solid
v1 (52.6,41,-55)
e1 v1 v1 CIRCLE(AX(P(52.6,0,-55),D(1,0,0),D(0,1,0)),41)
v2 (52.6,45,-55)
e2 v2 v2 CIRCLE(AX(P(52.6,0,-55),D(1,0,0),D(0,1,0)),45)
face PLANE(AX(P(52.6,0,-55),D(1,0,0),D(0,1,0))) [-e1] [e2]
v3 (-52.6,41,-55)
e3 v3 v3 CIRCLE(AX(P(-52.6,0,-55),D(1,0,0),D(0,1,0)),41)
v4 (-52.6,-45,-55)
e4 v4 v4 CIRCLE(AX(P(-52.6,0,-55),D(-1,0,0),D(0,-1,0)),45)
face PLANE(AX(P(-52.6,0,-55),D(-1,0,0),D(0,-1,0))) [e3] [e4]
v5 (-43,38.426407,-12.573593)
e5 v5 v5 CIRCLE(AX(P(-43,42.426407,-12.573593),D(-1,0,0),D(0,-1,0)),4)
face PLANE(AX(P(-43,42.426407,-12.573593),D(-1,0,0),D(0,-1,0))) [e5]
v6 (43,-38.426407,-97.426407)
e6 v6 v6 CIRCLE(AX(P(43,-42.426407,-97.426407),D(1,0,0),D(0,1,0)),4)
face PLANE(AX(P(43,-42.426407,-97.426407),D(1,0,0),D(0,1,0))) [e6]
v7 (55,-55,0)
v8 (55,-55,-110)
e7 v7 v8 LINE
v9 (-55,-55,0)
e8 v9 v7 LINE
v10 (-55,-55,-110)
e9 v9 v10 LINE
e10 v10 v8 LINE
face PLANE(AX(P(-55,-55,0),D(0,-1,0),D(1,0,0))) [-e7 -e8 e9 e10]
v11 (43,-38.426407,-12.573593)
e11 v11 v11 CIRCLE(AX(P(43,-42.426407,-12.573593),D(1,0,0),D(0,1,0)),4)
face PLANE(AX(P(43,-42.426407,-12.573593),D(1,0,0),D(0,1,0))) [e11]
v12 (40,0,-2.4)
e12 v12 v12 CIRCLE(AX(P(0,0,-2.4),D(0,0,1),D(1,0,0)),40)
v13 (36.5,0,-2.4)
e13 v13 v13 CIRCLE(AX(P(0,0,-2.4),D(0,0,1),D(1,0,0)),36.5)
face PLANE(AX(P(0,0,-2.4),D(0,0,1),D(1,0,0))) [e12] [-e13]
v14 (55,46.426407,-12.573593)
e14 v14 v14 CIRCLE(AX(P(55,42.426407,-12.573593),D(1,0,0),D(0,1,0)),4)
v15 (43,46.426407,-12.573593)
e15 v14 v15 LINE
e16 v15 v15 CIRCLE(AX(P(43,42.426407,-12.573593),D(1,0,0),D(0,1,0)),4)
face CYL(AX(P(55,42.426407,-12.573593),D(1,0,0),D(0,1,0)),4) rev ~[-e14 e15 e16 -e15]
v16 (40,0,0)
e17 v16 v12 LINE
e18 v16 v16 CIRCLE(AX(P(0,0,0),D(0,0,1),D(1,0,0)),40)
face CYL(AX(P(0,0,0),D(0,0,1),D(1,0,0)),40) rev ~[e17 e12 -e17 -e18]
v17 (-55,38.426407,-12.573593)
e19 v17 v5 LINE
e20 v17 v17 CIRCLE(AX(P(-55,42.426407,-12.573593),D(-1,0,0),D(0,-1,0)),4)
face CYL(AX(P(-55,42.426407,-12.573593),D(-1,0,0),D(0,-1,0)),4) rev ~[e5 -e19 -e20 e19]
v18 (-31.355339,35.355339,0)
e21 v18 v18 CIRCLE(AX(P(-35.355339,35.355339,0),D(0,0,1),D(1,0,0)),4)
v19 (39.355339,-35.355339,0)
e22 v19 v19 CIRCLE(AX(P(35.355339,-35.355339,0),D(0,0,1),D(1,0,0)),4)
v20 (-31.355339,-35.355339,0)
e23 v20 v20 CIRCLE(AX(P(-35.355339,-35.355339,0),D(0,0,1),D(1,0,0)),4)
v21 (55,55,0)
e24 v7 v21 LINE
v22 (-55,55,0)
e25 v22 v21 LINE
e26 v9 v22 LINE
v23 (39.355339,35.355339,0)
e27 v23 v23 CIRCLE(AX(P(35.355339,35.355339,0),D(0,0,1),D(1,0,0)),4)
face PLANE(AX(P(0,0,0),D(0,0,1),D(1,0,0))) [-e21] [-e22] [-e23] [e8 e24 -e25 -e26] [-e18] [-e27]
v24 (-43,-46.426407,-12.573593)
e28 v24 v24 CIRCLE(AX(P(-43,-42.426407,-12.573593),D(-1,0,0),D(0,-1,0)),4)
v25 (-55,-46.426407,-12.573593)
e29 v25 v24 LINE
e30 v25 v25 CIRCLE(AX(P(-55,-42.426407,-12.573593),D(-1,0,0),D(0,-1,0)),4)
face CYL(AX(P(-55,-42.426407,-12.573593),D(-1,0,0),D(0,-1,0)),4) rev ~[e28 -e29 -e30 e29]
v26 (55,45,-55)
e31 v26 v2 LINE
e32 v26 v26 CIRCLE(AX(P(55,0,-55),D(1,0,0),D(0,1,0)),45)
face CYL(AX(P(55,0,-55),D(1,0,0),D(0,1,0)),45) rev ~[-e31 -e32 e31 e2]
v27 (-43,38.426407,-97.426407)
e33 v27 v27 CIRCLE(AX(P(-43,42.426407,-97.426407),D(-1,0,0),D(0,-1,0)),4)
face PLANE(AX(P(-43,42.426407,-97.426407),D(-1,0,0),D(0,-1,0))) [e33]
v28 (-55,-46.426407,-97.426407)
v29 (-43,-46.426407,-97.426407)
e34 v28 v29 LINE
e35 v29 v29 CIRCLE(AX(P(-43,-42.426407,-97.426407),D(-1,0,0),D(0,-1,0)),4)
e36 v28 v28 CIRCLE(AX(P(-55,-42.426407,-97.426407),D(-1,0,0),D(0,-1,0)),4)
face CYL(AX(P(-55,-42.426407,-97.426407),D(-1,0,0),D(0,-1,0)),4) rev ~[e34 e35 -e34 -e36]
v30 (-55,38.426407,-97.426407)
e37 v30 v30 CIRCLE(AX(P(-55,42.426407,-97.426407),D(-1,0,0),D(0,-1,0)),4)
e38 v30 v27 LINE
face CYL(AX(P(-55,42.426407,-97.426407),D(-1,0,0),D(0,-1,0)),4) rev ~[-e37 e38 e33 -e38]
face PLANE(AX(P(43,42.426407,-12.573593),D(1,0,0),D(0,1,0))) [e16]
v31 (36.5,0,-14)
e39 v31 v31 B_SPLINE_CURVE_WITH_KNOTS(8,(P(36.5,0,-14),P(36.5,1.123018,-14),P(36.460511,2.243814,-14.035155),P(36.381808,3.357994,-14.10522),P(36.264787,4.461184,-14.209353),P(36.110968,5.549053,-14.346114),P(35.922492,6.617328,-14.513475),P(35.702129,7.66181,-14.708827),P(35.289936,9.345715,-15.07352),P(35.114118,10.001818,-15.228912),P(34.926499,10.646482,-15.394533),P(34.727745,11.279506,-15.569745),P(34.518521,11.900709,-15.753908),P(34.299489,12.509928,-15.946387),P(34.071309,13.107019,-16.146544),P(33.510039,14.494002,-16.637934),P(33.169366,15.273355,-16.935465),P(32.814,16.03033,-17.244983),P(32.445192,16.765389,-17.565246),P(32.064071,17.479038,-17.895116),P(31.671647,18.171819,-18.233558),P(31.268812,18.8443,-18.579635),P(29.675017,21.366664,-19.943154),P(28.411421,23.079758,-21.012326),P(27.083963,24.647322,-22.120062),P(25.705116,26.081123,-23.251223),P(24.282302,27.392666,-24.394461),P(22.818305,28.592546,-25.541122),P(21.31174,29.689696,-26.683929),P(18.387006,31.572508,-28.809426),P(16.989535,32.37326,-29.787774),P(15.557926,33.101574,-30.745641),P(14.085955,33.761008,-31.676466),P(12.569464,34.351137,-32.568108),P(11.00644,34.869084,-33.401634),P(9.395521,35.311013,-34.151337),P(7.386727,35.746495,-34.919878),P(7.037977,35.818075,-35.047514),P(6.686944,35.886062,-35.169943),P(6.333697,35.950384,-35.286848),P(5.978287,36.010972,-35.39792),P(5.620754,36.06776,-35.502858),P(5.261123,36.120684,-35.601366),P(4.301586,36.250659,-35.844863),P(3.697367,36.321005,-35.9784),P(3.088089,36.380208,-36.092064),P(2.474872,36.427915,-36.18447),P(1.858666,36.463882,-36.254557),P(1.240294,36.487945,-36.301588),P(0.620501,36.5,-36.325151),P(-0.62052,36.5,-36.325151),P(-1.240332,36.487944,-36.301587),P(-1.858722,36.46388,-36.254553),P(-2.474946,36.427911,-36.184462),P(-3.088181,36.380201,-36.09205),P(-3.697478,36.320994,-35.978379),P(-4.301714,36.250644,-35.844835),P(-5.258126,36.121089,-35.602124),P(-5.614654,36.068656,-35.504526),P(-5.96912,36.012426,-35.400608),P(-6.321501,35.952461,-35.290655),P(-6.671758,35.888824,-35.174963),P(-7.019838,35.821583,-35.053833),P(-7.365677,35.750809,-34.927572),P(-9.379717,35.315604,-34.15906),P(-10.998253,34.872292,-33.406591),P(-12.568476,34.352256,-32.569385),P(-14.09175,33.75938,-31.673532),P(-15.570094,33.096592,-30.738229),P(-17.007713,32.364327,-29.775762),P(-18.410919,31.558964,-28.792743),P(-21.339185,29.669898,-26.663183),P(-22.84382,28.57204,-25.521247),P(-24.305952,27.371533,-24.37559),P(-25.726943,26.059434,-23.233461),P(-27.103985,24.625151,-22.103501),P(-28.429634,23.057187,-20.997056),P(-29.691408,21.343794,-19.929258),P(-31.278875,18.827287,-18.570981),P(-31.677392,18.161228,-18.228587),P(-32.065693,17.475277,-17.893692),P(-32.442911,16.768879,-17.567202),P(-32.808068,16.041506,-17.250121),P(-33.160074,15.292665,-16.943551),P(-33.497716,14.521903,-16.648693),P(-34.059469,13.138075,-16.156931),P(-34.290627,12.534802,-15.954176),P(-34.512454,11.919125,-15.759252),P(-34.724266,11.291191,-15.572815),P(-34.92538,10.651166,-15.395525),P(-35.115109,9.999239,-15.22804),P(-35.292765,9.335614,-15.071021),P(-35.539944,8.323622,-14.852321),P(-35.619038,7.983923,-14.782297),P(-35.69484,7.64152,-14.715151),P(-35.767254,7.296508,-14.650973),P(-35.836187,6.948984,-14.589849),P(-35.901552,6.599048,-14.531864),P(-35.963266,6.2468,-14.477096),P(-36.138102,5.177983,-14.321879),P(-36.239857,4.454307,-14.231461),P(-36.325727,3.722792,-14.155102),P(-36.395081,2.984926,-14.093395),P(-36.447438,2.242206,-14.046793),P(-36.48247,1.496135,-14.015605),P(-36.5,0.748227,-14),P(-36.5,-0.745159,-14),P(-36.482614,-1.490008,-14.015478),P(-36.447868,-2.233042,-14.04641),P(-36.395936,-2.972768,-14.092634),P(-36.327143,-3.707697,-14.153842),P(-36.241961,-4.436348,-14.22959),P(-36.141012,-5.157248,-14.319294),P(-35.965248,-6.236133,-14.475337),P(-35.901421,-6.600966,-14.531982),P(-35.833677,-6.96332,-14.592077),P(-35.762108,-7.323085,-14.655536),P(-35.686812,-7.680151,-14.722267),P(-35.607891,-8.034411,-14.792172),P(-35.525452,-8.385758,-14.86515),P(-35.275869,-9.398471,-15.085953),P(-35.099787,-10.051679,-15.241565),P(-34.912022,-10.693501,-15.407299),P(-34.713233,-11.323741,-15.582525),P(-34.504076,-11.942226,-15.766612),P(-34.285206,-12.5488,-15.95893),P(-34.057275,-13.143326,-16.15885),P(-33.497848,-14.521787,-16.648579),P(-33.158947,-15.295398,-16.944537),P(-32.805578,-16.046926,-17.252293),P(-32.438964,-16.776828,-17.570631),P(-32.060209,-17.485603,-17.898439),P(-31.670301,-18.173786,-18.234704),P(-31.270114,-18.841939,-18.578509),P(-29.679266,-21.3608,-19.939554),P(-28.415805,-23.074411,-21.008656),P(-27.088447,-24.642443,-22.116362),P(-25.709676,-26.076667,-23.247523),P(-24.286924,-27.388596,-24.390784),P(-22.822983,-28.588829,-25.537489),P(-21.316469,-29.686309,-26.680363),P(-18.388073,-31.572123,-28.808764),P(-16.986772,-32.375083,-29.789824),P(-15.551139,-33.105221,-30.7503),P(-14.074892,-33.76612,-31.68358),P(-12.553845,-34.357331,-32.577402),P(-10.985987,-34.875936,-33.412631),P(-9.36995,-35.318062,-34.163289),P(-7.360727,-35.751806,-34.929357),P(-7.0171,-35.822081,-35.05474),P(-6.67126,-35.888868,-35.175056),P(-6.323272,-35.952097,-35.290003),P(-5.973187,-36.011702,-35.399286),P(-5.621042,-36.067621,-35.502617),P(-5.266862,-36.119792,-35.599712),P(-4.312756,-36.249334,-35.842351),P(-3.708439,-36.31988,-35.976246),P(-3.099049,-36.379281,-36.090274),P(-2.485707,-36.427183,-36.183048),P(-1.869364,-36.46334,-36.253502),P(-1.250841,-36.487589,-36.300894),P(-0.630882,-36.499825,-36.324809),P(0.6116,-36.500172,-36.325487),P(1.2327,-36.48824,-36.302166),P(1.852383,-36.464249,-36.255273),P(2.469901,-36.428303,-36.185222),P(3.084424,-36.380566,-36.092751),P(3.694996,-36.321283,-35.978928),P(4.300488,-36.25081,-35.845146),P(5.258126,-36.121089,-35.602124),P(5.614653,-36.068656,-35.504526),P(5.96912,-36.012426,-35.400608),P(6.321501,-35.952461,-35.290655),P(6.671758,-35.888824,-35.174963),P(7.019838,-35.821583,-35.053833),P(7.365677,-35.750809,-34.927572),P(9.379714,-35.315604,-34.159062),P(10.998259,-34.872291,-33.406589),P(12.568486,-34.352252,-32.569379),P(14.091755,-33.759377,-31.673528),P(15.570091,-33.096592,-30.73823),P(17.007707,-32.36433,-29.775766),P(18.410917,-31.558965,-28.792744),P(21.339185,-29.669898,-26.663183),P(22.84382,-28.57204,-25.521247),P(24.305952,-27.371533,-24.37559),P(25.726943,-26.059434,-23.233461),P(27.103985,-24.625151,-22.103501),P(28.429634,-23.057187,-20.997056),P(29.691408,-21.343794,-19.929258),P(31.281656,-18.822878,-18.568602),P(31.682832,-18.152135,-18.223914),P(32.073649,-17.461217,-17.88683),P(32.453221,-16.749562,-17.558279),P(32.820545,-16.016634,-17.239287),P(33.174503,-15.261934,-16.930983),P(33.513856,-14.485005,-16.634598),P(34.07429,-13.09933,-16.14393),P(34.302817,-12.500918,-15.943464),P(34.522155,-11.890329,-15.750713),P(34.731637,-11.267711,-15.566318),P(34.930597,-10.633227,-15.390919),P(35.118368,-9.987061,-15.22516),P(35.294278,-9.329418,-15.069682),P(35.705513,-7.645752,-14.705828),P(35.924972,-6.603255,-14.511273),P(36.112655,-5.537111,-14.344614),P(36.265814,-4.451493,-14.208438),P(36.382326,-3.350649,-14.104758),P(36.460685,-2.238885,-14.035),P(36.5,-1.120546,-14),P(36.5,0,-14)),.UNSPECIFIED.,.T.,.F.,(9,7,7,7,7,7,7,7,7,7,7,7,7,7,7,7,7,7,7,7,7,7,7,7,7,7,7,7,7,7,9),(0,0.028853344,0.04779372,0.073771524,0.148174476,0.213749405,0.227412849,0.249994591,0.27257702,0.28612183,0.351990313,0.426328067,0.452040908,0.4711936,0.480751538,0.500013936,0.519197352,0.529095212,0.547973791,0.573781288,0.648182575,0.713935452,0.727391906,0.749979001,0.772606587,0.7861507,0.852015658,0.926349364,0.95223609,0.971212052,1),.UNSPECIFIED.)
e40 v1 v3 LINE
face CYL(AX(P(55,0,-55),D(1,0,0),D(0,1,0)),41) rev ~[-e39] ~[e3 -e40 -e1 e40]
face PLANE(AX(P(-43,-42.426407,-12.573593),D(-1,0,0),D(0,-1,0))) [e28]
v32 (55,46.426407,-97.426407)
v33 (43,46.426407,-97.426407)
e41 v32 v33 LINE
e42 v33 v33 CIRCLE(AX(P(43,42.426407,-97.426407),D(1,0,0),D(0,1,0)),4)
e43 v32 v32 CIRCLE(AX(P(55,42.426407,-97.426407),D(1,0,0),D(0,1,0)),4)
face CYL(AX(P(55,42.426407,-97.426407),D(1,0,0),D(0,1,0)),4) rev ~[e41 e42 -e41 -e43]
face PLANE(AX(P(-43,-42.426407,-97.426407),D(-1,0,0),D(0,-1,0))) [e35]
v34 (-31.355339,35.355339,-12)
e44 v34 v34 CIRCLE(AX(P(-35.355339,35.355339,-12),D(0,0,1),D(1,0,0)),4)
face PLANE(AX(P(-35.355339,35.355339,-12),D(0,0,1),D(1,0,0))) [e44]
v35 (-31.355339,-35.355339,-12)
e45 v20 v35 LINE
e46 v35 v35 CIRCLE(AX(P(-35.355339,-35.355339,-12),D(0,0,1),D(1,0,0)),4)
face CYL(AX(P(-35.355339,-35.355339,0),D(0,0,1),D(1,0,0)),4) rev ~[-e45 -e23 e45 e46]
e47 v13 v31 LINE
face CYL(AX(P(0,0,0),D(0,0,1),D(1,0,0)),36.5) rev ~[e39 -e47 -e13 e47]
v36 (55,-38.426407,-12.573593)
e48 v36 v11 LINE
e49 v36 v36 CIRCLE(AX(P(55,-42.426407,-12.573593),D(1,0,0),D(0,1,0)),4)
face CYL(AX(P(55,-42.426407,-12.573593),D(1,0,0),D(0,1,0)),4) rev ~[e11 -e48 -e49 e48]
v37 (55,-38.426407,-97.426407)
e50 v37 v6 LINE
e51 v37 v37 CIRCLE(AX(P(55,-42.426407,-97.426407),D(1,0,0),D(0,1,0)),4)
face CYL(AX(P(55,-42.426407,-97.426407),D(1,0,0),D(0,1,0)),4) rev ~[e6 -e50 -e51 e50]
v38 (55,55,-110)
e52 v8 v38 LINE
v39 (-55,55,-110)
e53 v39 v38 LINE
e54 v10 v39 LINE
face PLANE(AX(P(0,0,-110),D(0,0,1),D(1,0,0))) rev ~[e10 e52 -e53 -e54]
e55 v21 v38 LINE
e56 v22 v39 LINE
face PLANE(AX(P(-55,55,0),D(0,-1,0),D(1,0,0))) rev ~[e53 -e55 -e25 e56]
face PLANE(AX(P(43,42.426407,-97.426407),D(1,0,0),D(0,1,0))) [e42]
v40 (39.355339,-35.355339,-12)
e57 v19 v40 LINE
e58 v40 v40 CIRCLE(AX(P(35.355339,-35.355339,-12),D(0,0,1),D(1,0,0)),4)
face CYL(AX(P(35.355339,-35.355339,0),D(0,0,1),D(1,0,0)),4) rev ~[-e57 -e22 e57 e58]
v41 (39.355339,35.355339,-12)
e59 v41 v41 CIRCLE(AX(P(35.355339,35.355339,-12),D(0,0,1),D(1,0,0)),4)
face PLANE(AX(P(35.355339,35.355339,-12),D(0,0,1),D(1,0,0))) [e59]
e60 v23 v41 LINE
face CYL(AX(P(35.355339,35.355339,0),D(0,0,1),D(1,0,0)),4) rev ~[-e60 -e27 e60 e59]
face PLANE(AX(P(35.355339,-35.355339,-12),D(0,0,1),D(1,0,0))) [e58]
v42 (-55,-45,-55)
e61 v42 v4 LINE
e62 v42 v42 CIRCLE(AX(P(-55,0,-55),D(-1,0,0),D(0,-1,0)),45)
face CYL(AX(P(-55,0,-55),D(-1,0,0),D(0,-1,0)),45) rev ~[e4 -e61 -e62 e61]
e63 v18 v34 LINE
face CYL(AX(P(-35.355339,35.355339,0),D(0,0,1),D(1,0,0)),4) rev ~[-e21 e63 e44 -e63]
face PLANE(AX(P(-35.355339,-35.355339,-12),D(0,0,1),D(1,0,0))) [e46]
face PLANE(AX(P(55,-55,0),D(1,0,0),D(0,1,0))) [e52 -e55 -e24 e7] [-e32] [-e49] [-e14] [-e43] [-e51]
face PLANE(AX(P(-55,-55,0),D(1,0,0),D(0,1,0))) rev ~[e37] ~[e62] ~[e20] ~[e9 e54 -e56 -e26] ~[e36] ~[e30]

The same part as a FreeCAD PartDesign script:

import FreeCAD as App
import Part
import Sketcher

V = App.Vector
Q = App.Units.Quantity

doc = App.newDocument("Part")
body = doc.addObject("PartDesign::Body", "Body")

# Sketch on XY plane
sketch1 = doc.addObject("Sketcher::SketchObject", "Sketch")
body.addObject(sketch1)
sketch1.AttachmentSupport = (doc.XY_Plane, [""])
sketch1.MapMode = "FlatFace"
sketch1.addGeometry([
    Part.LineSegment(V(-55, 55, 0), V(-55, -55, 0)),
    Part.LineSegment(V(-55, -55, 0), V(55, -55, 0)),
    Part.LineSegment(V(55, -55, 0), V(55, 55, 0)),
    Part.LineSegment(V(55, 55, 0), V(-55, 55, 0)),
], False)
sketch1.addConstraint([
    Sketcher.Constraint("Coincident", 0, 2, 1, 1),
    Sketcher.Constraint("Coincident", 1, 2, 2, 1),
    Sketcher.Constraint("Coincident", 2, 2, 3, 1),
    Sketcher.Constraint("Coincident", 3, 2, 0, 1),
    Sketcher.Constraint("Vertical", 0),
    Sketcher.Constraint("Horizontal", 1),
    Sketcher.Constraint("Vertical", 2),
    Sketcher.Constraint("Horizontal", 3),
    Sketcher.Constraint("Symmetric", 0, 2, 2, 2, -1, 1),
    Sketcher.Constraint("Equal", 3, 0),
    Sketcher.Constraint("DistanceX", 1, 1, 1, 2, Q("110 mm")),
])
pad1 = doc.addObject("PartDesign::Pad", "Pad")
body.addObject(pad1)
pad1.Profile = sketch1
pad1.Length = 110
pad1.Reversed = True

# Sketch on XY plane
sketch2 = doc.addObject("Sketcher::SketchObject", "Sketch001")
body.addObject(sketch2)
sketch2.AttachmentSupport = (doc.XY_Plane, [""])
sketch2.MapMode = "FlatFace"
sketch2.addGeometry([
    Part.Circle(V(0, 0, 0), V(0, 0, 1), 40),
    Part.Circle(V(0, 0, 0), V(0, 0, 1), 36),
], False)
sketch2.addConstraint([
    Sketcher.Constraint("Coincident", 0, 3, -1, 1),
    Sketcher.Constraint("Coincident", 1, 3, -1, 1),
    Sketcher.Constraint("Diameter", 0, Q("80 mm")),
    Sketcher.Constraint("Diameter", 1, Q("73 mm")),
])
pocket1 = doc.addObject("PartDesign::Pocket", "Pocket")
body.addObject(pocket1)
pocket1.Profile = sketch2
pocket1.Length = 2.4

# Sketch on XY plane
sketch3 = doc.addObject("Sketcher::SketchObject", "Sketch002")
body.addObject(sketch3)
sketch3.AttachmentSupport = (doc.XY_Plane, [""])
sketch3.MapMode = "FlatFace"
sketch3.addGeometry(Part.Circle(V(0, 0, 0), V(0, 0, 1), 36), False)
sketch3.addConstraint([
    Sketcher.Constraint("Coincident", 0, 3, -1, 1),
    Sketcher.Constraint("Diameter", 0, Q("73 mm")),
])
pocket2 = doc.addObject("PartDesign::Pocket", "Pocket001")
body.addObject(pocket2)
pocket2.Profile = sketch3
pocket2.Length = 36.5

# Sketch on XY plane
sketch4 = doc.addObject("Sketcher::SketchObject", "Sketch003")
body.addObject(sketch4)
sketch4.AttachmentSupport = (doc.XY_Plane, [""])
sketch4.MapMode = "FlatFace"
sketch4.addGeometry([
    Part.Circle(V(35.4, 35.4, 0), V(0, 0, 1), 4),
    Part.Circle(V(-35.4, 35.4, 0), V(0, 0, 1), 4),
    Part.Circle(V(-35.4, -35.4, 0), V(0, 0, 1), 4),
    Part.Circle(V(35.4, -35.4, 0), V(0, 0, 1), 4),
], False)
sketch4.addConstraint([
    Sketcher.Constraint("Equal", 0, 1),
    Sketcher.Constraint("Equal", 1, 2),
    Sketcher.Constraint("Equal", 2, 3),
    Sketcher.Constraint("Symmetric", 0, 3, 2, 3, -1, 1),
    Sketcher.Constraint("Symmetric", 1, 3, 3, 3, -1, 1),
    Sketcher.Constraint("Symmetric", 0, 3, 1, 3, -2),
    Sketcher.Constraint("Diameter", 0, Q("8 mm")),
    Sketcher.Constraint("DistanceX", -1, 1, 0, 3, Q("35.355339 mm")),
    Sketcher.Constraint("DistanceY", -1, 1, 0, 3, Q("35.355339 mm")),
])
pocket3 = doc.addObject("PartDesign::Pocket", "Pocket002")
body.addObject(pocket3)
pocket3.Profile = sketch4
pocket3.Length = 12

# Sketch on YZ plane
sketch5 = doc.addObject("Sketcher::SketchObject", "Sketch004")
body.addObject(sketch5)
sketch5.AttachmentSupport = (doc.YZ_Plane, [""])
sketch5.MapMode = "FlatFace"
sketch5.AttachmentOffset = App.Placement(V(0, 0, 55), App.Rotation())
sketch5.addGeometry(Part.Circle(V(0, -55, 0), V(0, 0, 1), 41), False)
sketch5.addConstraint([
    Sketcher.Constraint("PointOnObject", 0, 3, -2),
    Sketcher.Constraint("Diameter", 0, Q("82 mm")),
    Sketcher.Constraint("DistanceY", 0, 3, -1, 1, Q("55 mm")),
])
pocket4 = doc.addObject("PartDesign::Pocket", "Pocket003")
body.addObject(pocket4)
pocket4.Profile = sketch5
pocket4.Type = "ThroughAll"

# Sketch on YZ plane
sketch6 = doc.addObject("Sketcher::SketchObject", "Sketch005")
body.addObject(sketch6)
sketch6.AttachmentSupport = (doc.YZ_Plane, [""])
sketch6.MapMode = "FlatFace"
sketch6.AttachmentOffset = App.Placement(V(0, 0, 55), App.Rotation())
sketch6.addGeometry([
    Part.Circle(V(0, -55, 0), V(0, 0, 1), 45),
    Part.Circle(V(0, -55, 0), V(0, 0, 1), 41),
], False)
sketch6.addConstraint([
    Sketcher.Constraint("Coincident", 1, 3, 0, 3),
    Sketcher.Constraint("PointOnObject", 0, 3, -2),
    Sketcher.Constraint("Diameter", 0, Q("90 mm")),
    Sketcher.Constraint("Diameter", 1, Q("82 mm")),
    Sketcher.Constraint("DistanceY", 0, 3, -1, 1, Q("55 mm")),
])
pocket5 = doc.addObject("PartDesign::Pocket", "Pocket004")
body.addObject(pocket5)
pocket5.Profile = sketch6
pocket5.Length = 2.4

# Sketch on YZ plane
sketch7 = doc.addObject("Sketcher::SketchObject", "Sketch006")
body.addObject(sketch7)
sketch7.AttachmentSupport = (doc.YZ_Plane, [""])
sketch7.MapMode = "FlatFace"
sketch7.AttachmentOffset = App.Placement(V(0, 0, 55), App.Rotation())
sketch7.addGeometry([
    Part.Circle(V(42.4, -12.6, 0), V(0, 0, 1), 4),
    Part.Circle(V(-42.4, -12.6, 0), V(0, 0, 1), 4),
    Part.Circle(V(-42.4, -97.4, 0), V(0, 0, 1), 4),
    Part.Circle(V(42.4, -97.4, 0), V(0, 0, 1), 4),
], False)
sketch7.addConstraint([
    Sketcher.Constraint("Equal", 0, 1),
    Sketcher.Constraint("Equal", 1, 2),
    Sketcher.Constraint("Equal", 2, 3),
    Sketcher.Constraint("Symmetric", 0, 3, 1, 3, -2),
    Sketcher.Constraint("Symmetric", 2, 3, 3, 3, -2),
    Sketcher.Constraint("Vertical", 1, 3, 2, 3),
    Sketcher.Constraint("Diameter", 0, Q("8 mm")),
    Sketcher.Constraint("DistanceX", -1, 1, 0, 3, Q("42.426407 mm")),
    Sketcher.Constraint("DistanceY", 0, 3, -1, 1, Q("12.573593 mm")),
    Sketcher.Constraint("DistanceY", 2, 3, -1, 1, Q("97.426407 mm")),
])
pocket6 = doc.addObject("PartDesign::Pocket", "Pocket005")
body.addObject(pocket6)
pocket6.Profile = sketch7
pocket6.Length = 12

# Sketch on YZ plane
sketch8 = doc.addObject("Sketcher::SketchObject", "Sketch007")
body.addObject(sketch8)
sketch8.AttachmentSupport = (doc.YZ_Plane, [""])
sketch8.MapMode = "FlatFace"
sketch8.AttachmentOffset = App.Placement(V(0, 0, -55), App.Rotation())
sketch8.addGeometry([
    Part.Circle(V(0, -55, 0), V(0, 0, 1), 45),
    Part.Circle(V(0, -55, 0), V(0, 0, 1), 41),
], False)
sketch8.addConstraint([
    Sketcher.Constraint("Coincident", 1, 3, 0, 3),
    Sketcher.Constraint("PointOnObject", 0, 3, -2),
    Sketcher.Constraint("Diameter", 0, Q("90 mm")),
    Sketcher.Constraint("Diameter", 1, Q("82 mm")),
    Sketcher.Constraint("DistanceY", 0, 3, -1, 1, Q("55 mm")),
])
pocket7 = doc.addObject("PartDesign::Pocket", "Pocket006")
body.addObject(pocket7)
pocket7.Profile = sketch8
pocket7.Length = 2.4
pocket7.Reversed = True

# Sketch on YZ plane
sketch9 = doc.addObject("Sketcher::SketchObject", "Sketch008")
body.addObject(sketch9)
sketch9.AttachmentSupport = (doc.YZ_Plane, [""])
sketch9.MapMode = "FlatFace"
sketch9.AttachmentOffset = App.Placement(V(0, 0, -55), App.Rotation())
sketch9.addGeometry([
    Part.Circle(V(42.4, -12.6, 0), V(0, 0, 1), 4),
    Part.Circle(V(-42.4, -12.6, 0), V(0, 0, 1), 4),
    Part.Circle(V(-42.4, -97.4, 0), V(0, 0, 1), 4),
    Part.Circle(V(42.4, -97.4, 0), V(0, 0, 1), 4),
], False)
sketch9.addConstraint([
    Sketcher.Constraint("Equal", 0, 1),
    Sketcher.Constraint("Equal", 1, 2),
    Sketcher.Constraint("Equal", 2, 3),
    Sketcher.Constraint("Symmetric", 0, 3, 1, 3, -2),
    Sketcher.Constraint("Symmetric", 2, 3, 3, 3, -2),
    Sketcher.Constraint("Vertical", 1, 3, 2, 3),
    Sketcher.Constraint("Diameter", 0, Q("8 mm")),
    Sketcher.Constraint("DistanceX", -1, 1, 0, 3, Q("42.426407 mm")),
    Sketcher.Constraint("DistanceY", 0, 3, -1, 1, Q("12.573593 mm")),
    Sketcher.Constraint("DistanceY", 2, 3, -1, 1, Q("97.426407 mm")),
])
pocket8 = doc.addObject("PartDesign::Pocket", "Pocket007")
body.addObject(pocket8)
pocket8.Profile = sketch9
pocket8.Length = 12
pocket8.Reversed = True

doc.recompute()
